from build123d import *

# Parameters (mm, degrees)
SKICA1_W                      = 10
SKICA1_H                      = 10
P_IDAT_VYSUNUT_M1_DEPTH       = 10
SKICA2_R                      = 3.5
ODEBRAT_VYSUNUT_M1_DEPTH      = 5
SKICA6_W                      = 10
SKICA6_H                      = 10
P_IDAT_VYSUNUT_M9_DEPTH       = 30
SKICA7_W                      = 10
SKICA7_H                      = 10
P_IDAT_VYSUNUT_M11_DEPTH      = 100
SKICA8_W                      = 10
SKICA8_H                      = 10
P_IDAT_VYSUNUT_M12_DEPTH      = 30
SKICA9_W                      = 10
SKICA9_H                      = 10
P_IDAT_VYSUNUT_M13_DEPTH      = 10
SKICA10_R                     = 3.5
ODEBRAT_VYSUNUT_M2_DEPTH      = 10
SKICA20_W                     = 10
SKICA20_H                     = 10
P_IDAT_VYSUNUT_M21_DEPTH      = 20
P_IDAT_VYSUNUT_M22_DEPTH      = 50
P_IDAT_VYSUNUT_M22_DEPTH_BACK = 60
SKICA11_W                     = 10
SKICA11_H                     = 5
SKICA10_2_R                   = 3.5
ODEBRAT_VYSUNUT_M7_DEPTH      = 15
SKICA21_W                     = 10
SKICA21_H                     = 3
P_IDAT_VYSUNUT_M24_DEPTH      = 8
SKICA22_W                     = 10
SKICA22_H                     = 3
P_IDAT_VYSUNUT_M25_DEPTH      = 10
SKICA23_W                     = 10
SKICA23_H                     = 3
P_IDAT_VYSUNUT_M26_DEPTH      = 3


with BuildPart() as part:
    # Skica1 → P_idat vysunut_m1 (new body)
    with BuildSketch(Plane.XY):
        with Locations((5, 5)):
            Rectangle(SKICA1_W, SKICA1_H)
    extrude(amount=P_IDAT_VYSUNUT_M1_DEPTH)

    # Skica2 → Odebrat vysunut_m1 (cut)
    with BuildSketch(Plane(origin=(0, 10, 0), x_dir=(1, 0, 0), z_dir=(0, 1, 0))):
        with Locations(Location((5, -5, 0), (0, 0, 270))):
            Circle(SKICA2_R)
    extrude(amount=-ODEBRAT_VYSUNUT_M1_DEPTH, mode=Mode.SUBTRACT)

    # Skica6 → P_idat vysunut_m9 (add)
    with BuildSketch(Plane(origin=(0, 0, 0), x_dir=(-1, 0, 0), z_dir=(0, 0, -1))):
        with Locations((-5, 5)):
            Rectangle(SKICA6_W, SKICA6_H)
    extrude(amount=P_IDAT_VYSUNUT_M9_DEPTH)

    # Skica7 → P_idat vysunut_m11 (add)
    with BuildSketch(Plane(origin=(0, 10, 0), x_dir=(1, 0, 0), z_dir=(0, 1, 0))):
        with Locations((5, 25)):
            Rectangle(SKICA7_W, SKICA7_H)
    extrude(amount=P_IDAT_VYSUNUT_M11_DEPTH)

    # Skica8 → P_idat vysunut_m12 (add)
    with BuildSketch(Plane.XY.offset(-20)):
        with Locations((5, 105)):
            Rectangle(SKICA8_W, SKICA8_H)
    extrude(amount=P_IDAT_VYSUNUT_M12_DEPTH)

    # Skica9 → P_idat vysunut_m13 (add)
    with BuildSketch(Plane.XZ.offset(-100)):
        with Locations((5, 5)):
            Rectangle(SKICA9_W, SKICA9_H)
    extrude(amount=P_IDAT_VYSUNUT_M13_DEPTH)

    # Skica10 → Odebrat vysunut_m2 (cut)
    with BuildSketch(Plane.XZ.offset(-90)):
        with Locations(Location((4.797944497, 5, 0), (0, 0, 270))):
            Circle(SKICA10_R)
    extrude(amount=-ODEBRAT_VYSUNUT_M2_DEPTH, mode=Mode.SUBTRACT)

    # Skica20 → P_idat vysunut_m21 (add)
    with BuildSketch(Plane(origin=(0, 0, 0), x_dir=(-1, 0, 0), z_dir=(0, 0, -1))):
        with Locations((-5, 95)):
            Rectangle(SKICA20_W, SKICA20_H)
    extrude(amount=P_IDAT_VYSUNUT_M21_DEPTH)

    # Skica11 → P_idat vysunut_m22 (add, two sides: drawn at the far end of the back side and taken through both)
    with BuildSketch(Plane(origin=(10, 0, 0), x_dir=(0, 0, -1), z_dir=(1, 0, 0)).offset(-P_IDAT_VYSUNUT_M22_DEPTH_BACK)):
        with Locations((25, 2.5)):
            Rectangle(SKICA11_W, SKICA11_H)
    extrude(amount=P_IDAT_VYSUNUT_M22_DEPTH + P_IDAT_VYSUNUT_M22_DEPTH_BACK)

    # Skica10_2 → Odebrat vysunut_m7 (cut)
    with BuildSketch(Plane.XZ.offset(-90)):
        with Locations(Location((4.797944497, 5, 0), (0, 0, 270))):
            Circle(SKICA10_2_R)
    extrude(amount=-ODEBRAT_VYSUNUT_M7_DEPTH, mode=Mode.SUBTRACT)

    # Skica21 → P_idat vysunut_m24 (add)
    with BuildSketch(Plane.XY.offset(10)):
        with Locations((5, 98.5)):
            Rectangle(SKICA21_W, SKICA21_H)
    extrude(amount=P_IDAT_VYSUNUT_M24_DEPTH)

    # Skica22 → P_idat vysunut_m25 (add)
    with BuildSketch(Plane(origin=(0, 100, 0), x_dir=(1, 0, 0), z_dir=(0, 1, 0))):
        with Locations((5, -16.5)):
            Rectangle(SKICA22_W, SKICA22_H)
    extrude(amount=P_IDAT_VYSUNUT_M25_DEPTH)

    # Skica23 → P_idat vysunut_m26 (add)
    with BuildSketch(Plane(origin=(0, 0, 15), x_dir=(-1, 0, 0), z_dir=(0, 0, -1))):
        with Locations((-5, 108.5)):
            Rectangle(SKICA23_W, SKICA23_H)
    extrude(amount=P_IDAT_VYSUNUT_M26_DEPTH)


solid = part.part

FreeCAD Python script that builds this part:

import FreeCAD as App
import Part
import Sketcher

doc = App.newDocument("Part")
body = doc.addObject("PartDesign::Body", "Body")

# Sketch on XY plane
sketch1 = body.newObject("Sketcher::SketchObject", "Sketch")
sketch1.AttachmentSupport = (doc.getObject("XY_Plane"), [""])
sketch1.MapMode = "FlatFace"
sketch1.addGeometry([
    Part.LineSegment(App.Vector(0, 10, 0), App.Vector(0, 0, 0)),
    Part.LineSegment(App.Vector(0, 0, 0), App.Vector(10, 0, 0)),
    Part.LineSegment(App.Vector(10, 0, 0), App.Vector(10, 10, 0)),
    Part.LineSegment(App.Vector(10, 10, 0), App.Vector(0, 10, 0)),
], False)
sketch1.addConstraint([
    Sketcher.Constraint("Coincident", 0, 2, 1, 1),
    Sketcher.Constraint("Coincident", 1, 2, 2, 1),
    Sketcher.Constraint("Coincident", 2, 2, 3, 1),
    Sketcher.Constraint("Coincident", 3, 2, 0, 1),
    Sketcher.Constraint("Vertical", 0),
    Sketcher.Constraint("Horizontal", 1),
    Sketcher.Constraint("Vertical", 2),
    Sketcher.Constraint("Horizontal", 3),
    Sketcher.Constraint("Coincident", 0, 2, -1, 1),
    Sketcher.Constraint("Equal", 3, 0),
    Sketcher.Constraint("DistanceX", 1, 1, 1, 2, 10.0),
])
pad1 = body.newObject("PartDesign::Pad", "Pad")
pad1.Profile = sketch1
pad1.Length = 10

# Sketch on XZ plane
sketch2 = body.newObject("Sketcher::SketchObject", "Sketch001")
sketch2.AttachmentSupport = (doc.getObject("XZ_Plane"), [""])
sketch2.MapMode = "FlatFace"
sketch2.AttachmentOffset = App.Placement(App.Vector(0, 0, -10), App.Rotation())
sketch2.addGeometry(Part.Circle(App.Vector(5, 5, 0), App.Vector(0, 0, 1), 3.5), False)
sketch2.addConstraint([
    Sketcher.Constraint("Diameter", 0, 7.0),
    Sketcher.Constraint("DistanceX", -1, 1, 0, 3, 5.0),
    Sketcher.Constraint("DistanceY", -1, 1, 0, 3, 5.0),
])
pocket1 = body.newObject("PartDesign::Pocket", "Pocket")
pocket1.Profile = sketch2
pocket1.Length = 5
pocket1.Reversed = True

# Sketch on XY plane
sketch3 = body.newObject("Sketcher::SketchObject", "Sketch002")
sketch3.AttachmentSupport = (doc.getObject("XY_Plane"), [""])
sketch3.MapMode = "FlatFace"
sketch3.addGeometry([
    Part.LineSegment(App.Vector(10, 10, 0), App.Vector(10, 0, 0)),
    Part.LineSegment(App.Vector(10, 0, 0), App.Vector(0, 0, 0)),
    Part.LineSegment(App.Vector(0, 0, 0), App.Vector(0, 10, 0)),
    Part.LineSegment(App.Vector(0, 10, 0), App.Vector(10, 10, 0)),
], False)
sketch3.addConstraint([
    Sketcher.Constraint("Coincident", 0, 2, 1, 1),
    Sketcher.Constraint("Coincident", 1, 2, 2, 1),
    Sketcher.Constraint("Coincident", 2, 2, 3, 1),
    Sketcher.Constraint("Coincident", 3, 2, 0, 1),
    Sketcher.Constraint("Vertical", 0),
    Sketcher.Constraint("Horizontal", 1),
    Sketcher.Constraint("Vertical", 2),
    Sketcher.Constraint("Horizontal", 3),
    Sketcher.Constraint("Coincident", 1, 2, -1, 1),
    Sketcher.Constraint("Equal", 3, 0),
    Sketcher.Constraint("DistanceX", 1, 2, 1, 1, 10.0),
])
pad2 = body.newObject("PartDesign::Pad", "Pad001")
pad2.Profile = sketch3
pad2.Length = 30
pad2.Reversed = True

# Sketch on XZ plane
sketch4 = body.newObject("Sketcher::SketchObject", "Sketch003")
sketch4.AttachmentSupport = (doc.getObject("XZ_Plane"), [""])
sketch4.MapMode = "FlatFace"
sketch4.AttachmentOffset = App.Placement(App.Vector(0, 0, -10), App.Rotation())
sketch4.addGeometry([
    Part.LineSegment(App.Vector(0, -30, 0), App.Vector(0, -20, 0)),
    Part.LineSegment(App.Vector(0, -20, 0), App.Vector(10, -20, 0)),
    Part.LineSegment(App.Vector(10, -20, 0), App.Vector(10, -30, 0)),
    Part.LineSegment(App.Vector(10, -30, 0), App.Vector(0, -30, 0)),
], False)
sketch4.addConstraint([
    Sketcher.Constraint("Coincident", 0, 2, 1, 1),
    Sketcher.Constraint("Coincident", 1, 2, 2, 1),
    Sketcher.Constraint("Coincident", 2, 2, 3, 1),
    Sketcher.Constraint("Coincident", 3, 2, 0, 1),
    Sketcher.Constraint("Vertical", 0),
    Sketcher.Constraint("Horizontal", 1),
    Sketcher.Constraint("Vertical", 2),
    Sketcher.Constraint("Horizontal", 3),
    Sketcher.Constraint("PointOnObject", 0, 2, -2),
    Sketcher.Constraint("Equal", 3, 0),
    Sketcher.Constraint("DistanceX", 1, 1, 1, 2, 10.0),
    Sketcher.Constraint("DistanceY", 0, 2, -1, 1, 20.0),
])
pad3 = body.newObject("PartDesign::Pad", "Pad002")
pad3.Profile = sketch4
pad3.Length = 100
pad3.Reversed = True

# Sketch on XY plane
sketch5 = body.newObject("Sketcher::SketchObject", "Sketch004")
sketch5.AttachmentSupport = (doc.getObject("XY_Plane"), [""])
sketch5.MapMode = "FlatFace"
sketch5.AttachmentOffset = App.Placement(App.Vector(0, 0, -20), App.Rotation())
sketch5.addGeometry([
    Part.LineSegment(App.Vector(0, 110, 0), App.Vector(0, 100, 0)),
    Part.LineSegment(App.Vector(0, 100, 0), App.Vector(10, 100, 0)),
    Part.LineSegment(App.Vector(10, 100, 0), App.Vector(10, 110, 0)),
    Part.LineSegment(App.Vector(10, 110, 0), App.Vector(0, 110, 0)),
], False)
sketch5.addConstraint([
    Sketcher.Constraint("Coincident", 0, 2, 1, 1),
    Sketcher.Constraint("Coincident", 1, 2, 2, 1),
    Sketcher.Constraint("Coincident", 2, 2, 3, 1),
    Sketcher.Constraint("Coincident", 3, 2, 0, 1),
    Sketcher.Constraint("Vertical", 0),
    Sketcher.Constraint("Horizontal", 1),
    Sketcher.Constraint("Vertical", 2),
    Sketcher.Constraint("Horizontal", 3),
    Sketcher.Constraint("PointOnObject", 0, 2, -2),
    Sketcher.Constraint("Equal", 3, 0),
    Sketcher.Constraint("DistanceX", 1, 1, 1, 2, 10.0),
    Sketcher.Constraint("DistanceY", -1, 1, 0, 2, 100.0),
])
pad4 = body.newObject("PartDesign::Pad", "Pad003")
pad4.Profile = sketch5
pad4.Length = 30

# Sketch on XZ plane
sketch6 = body.newObject("Sketcher::SketchObject", "Sketch005")
sketch6.AttachmentSupport = (doc.getObject("XZ_Plane"), [""])
sketch6.MapMode = "FlatFace"
sketch6.AttachmentOffset = App.Placement(App.Vector(0, 0, -100), App.Rotation())
sketch6.addGeometry([
    Part.LineSegment(App.Vector(0, 10, 0), App.Vector(0, 0, 0)),
    Part.LineSegment(App.Vector(0, 0, 0), App.Vector(10, 0, 0)),
    Part.LineSegment(App.Vector(10, 0, 0), App.Vector(10, 10, 0)),
    Part.LineSegment(App.Vector(10, 10, 0), App.Vector(0, 10, 0)),
], False)
sketch6.addConstraint([
    Sketcher.Constraint("Coincident", 0, 2, 1, 1),
    Sketcher.Constraint("Coincident", 1, 2, 2, 1),
    Sketcher.Constraint("Coincident", 2, 2, 3, 1),
    Sketcher.Constraint("Coincident", 3, 2, 0, 1),
    Sketcher.Constraint("Vertical", 0),
    Sketcher.Constraint("Horizontal", 1),
    Sketcher.Constraint("Vertical", 2),
    Sketcher.Constraint("Horizontal", 3),
    Sketcher.Constraint("Coincident", 0, 2, -1, 1),
    Sketcher.Constraint("Equal", 3, 0),
    Sketcher.Constraint("DistanceX", 1, 1, 1, 2, 10.0),
])
pad5 = body.newObject("PartDesign::Pad", "Pad004")
pad5.Profile = sketch6
pad5.Length = 10

# Sketch on XZ plane
sketch7 = body.newObject("Sketcher::SketchObject", "Sketch006")
sketch7.AttachmentSupport = (doc.getObject("XZ_Plane"), [""])
sketch7.MapMode = "FlatFace"
sketch7.AttachmentOffset = App.Placement(App.Vector(0, 0, -90), App.Rotation())
sketch7.addGeometry(Part.Circle(App.Vector(4.8, 5, 0), App.Vector(0, 0, 1), 3.5), False)
sketch7.addConstraint([
    Sketcher.Constraint("Diameter", 0, 7.0),
    Sketcher.Constraint("DistanceY", -1, 1, 0, 3, 5.0),
    Sketcher.Constraint("DistanceX", -1, 1, 0, 3, 4.797944),
])
pocket2 = body.newObject("PartDesign::Pocket", "Pocket001")
pocket2.Profile = sketch7
pocket2.Length = 10

# Sketch on XY plane
sketch8 = body.newObject("Sketcher::SketchObject", "Sketch007")
sketch8.AttachmentSupport = (doc.getObject("XY_Plane"), [""])
sketch8.MapMode = "FlatFace"
sketch8.addGeometry([
    Part.LineSegment(App.Vector(10, 100, 0), App.Vector(10, 90, 0)),
    Part.LineSegment(App.Vector(10, 90, 0), App.Vector(0, 90, 0)),
    Part.LineSegment(App.Vector(0, 90, 0), App.Vector(0, 100, 0)),
    Part.LineSegment(App.Vector(0, 100, 0), App.Vector(10, 100, 0)),
], False)
sketch8.addConstraint([
    Sketcher.Constraint("Coincident", 0, 2, 1, 1),
    Sketcher.Constraint("Coincident", 1, 2, 2, 1),
    Sketcher.Constraint("Coincident", 2, 2, 3, 1),
    Sketcher.Constraint("Coincident", 3, 2, 0, 1),
    Sketcher.Constraint("Vertical", 0),
    Sketcher.Constraint("Horizontal", 1),
    Sketcher.Constraint("Vertical", 2),
    Sketcher.Constraint("Horizontal", 3),
    Sketcher.Constraint("PointOnObject", 1, 2, -2),
    Sketcher.Constraint("Equal", 3, 0),
    Sketcher.Constraint("DistanceX", 1, 2, 1, 1, 10.0),
    Sketcher.Constraint("DistanceY", -1, 1, 0, 2, 90.0),
])
pad6 = body.newObject("PartDesign::Pad", "Pad005")
pad6.Profile = sketch8
pad6.Length = 20
pad6.Reversed = True

# Sketch on YZ plane
sketch9 = body.newObject("Sketcher::SketchObject", "Sketch008")
sketch9.AttachmentSupport = (doc.getObject("YZ_Plane"), [""])
sketch9.MapMode = "FlatFace"
sketch9.AttachmentOffset = App.Placement(App.Vector(0, 0, 10), App.Rotation())
sketch9.addGeometry([
    Part.LineSegment(App.Vector(5, -20, 0), App.Vector(0, -20, 0)),
    Part.LineSegment(App.Vector(0, -20, 0), App.Vector(0, -30, 0)),
    Part.LineSegment(App.Vector(0, -30, 0), App.Vector(5, -30, 0)),
    Part.LineSegment(App.Vector(5, -30, 0), App.Vector(5, -20, 0)),
], False)
sketch9.addConstraint([
    Sketcher.Constraint("Coincident", 0, 2, 1, 1),
    Sketcher.Constraint("Coincident", 1, 2, 2, 1),
    Sketcher.Constraint("Coincident", 2, 2, 3, 1),
    Sketcher.Constraint("Coincident", 3, 2, 0, 1),
    Sketcher.Constraint("Horizontal", 0),
    Sketcher.Constraint("Vertical", 1),
    Sketcher.Constraint("Horizontal", 2),
    Sketcher.Constraint("Vertical", 3),
    Sketcher.Constraint("PointOnObject", 0, 2, -2),
    Sketcher.Constraint("DistanceX", 0, 2, 0, 1, 5.0),
    Sketcher.Constraint("DistanceY", 1, 2, 1, 1, 10.0),
    Sketcher.Constraint("DistanceY", 0, 2, -1, 1, 20.0),
])
pad7 = body.newObject("PartDesign::Pad", "Pad006")
pad7.Profile = sketch9
pad7.Type = "TwoLengths"
pad7.Length = 50
pad7.Length2 = 60

# Sketch on XZ plane
sketch10 = body.newObject("Sketcher::SketchObject", "Sketch009")
sketch10.AttachmentSupport = (doc.getObject("XZ_Plane"), [""])
sketch10.MapMode = "FlatFace"
sketch10.AttachmentOffset = App.Placement(App.Vector(0, 0, -90), App.Rotation())
sketch10.addGeometry(Part.Circle(App.Vector(4.8, 5, 0), App.Vector(0, 0, 1), 3.5), False)
sketch10.addConstraint([
    Sketcher.Constraint("Diameter", 0, 7.0),
    Sketcher.Constraint("DistanceY", -1, 1, 0, 3, 5.0),
    Sketcher.Constraint("DistanceX", -1, 1, 0, 3, 4.797944),
])
pocket3 = body.newObject("PartDesign::Pocket", "Pocket002")
pocket3.Profile = sketch10
pocket3.Length = 15

# Sketch on XY plane
sketch11 = body.newObject("Sketcher::SketchObject", "Sketch010")
sketch11.AttachmentSupport = (doc.getObject("XY_Plane"), [""])
sketch11.MapMode = "FlatFace"
sketch11.AttachmentOffset = App.Placement(App.Vector(0, 0, 10), App.Rotation())
sketch11.addGeometry([
    Part.LineSegment(App.Vector(0, 100, 0), App.Vector(0, 97, 0)),
    Part.LineSegment(App.Vector(0, 97, 0), App.Vector(10, 97, 0)),
    Part.LineSegment(App.Vector(10, 97, 0), App.Vector(10, 100, 0)),
    Part.LineSegment(App.Vector(10, 100, 0), App.Vector(0, 100, 0)),
], False)
sketch11.addConstraint([
    Sketcher.Constraint("Coincident", 0, 2, 1, 1),
    Sketcher.Constraint("Coincident", 1, 2, 2, 1),
    Sketcher.Constraint("Coincident", 2, 2, 3, 1),
    Sketcher.Constraint("Coincident", 3, 2, 0, 1),
    Sketcher.Constraint("Vertical", 0),
    Sketcher.Constraint("Horizontal", 1),
    Sketcher.Constraint("Vertical", 2),
    Sketcher.Constraint("Horizontal", 3),
    Sketcher.Constraint("PointOnObject", 0, 2, -2),
    Sketcher.Constraint("DistanceX", 1, 1, 1, 2, 10.0),
    Sketcher.Constraint("DistanceY", 0, 2, 0, 1, 3.0),
    Sketcher.Constraint("DistanceY", -1, 1, 0, 2, 97.0),
])
pad8 = body.newObject("PartDesign::Pad", "Pad007")
pad8.Profile = sketch11
pad8.Length = 8

# Sketch on XZ plane
sketch12 = body.newObject("Sketcher::SketchObject", "Sketch011")
sketch12.AttachmentSupport = (doc.getObject("XZ_Plane"), [""])
sketch12.MapMode = "FlatFace"
sketch12.AttachmentOffset = App.Placement(App.Vector(0, 0, -100), App.Rotation())
sketch12.addGeometry([
    Part.LineSegment(App.Vector(0, 15, 0), App.Vector(0, 18, 0)),
    Part.LineSegment(App.Vector(0, 18, 0), App.Vector(10, 18, 0)),
    Part.LineSegment(App.Vector(10, 18, 0), App.Vector(10, 15, 0)),
    Part.LineSegment(App.Vector(10, 15, 0), App.Vector(0, 15, 0)),
], False)
sketch12.addConstraint([
    Sketcher.Constraint("Coincident", 0, 2, 1, 1),
    Sketcher.Constraint("Coincident", 1, 2, 2, 1),
    Sketcher.Constraint("Coincident", 2, 2, 3, 1),
    Sketcher.Constraint("Coincident", 3, 2, 0, 1),
    Sketcher.Constraint("Vertical", 0),
    Sketcher.Constraint("Horizontal", 1),
    Sketcher.Constraint("Vertical", 2),
    Sketcher.Constraint("Horizontal", 3),
    Sketcher.Constraint("PointOnObject", 0, 2, -2),
    Sketcher.Constraint("DistanceX", 1, 1, 1, 2, 10.0),
    Sketcher.Constraint("DistanceY", 0, 1, 0, 2, 3.0),
    Sketcher.Constraint("DistanceY", -1, 1, 0, 2, 18.0),
])
pad9 = body.newObject("PartDesign::Pad", "Pad008")
pad9.Profile = sketch12
pad9.Length = 10
pad9.Reversed = True

# Sketch on XY plane
sketch13 = body.newObject("Sketcher::SketchObject", "Sketch012")
sketch13.AttachmentSupport = (doc.getObject("XY_Plane"), [""])
sketch13.MapMode = "FlatFace"
sketch13.AttachmentOffset = App.Placement(App.Vector(0, 0, 15), App.Rotation())
sketch13.addGeometry([
    Part.LineSegment(App.Vector(10, 110, 0), App.Vector(10, 107, 0)),
    Part.LineSegment(App.Vector(10, 107, 0), App.Vector(0, 107, 0)),
    Part.LineSegment(App.Vector(0, 107, 0), App.Vector(0, 110, 0)),
    Part.LineSegment(App.Vector(0, 110, 0), App.Vector(10, 110, 0)),
], False)
sketch13.addConstraint([
    Sketcher.Constraint("Coincident", 0, 2, 1, 1),
    Sketcher.Constraint("Coincident", 1, 2, 2, 1),
    Sketcher.Constraint("Coincident", 2, 2, 3, 1),
    Sketcher.Constraint("Coincident", 3, 2, 0, 1),
    Sketcher.Constraint("Vertical", 0),
    Sketcher.Constraint("Horizontal", 1),
    Sketcher.Constraint("Vertical", 2),
    Sketcher.Constraint("Horizontal", 3),
    Sketcher.Constraint("PointOnObject", 1, 2, -2),
    Sketcher.Constraint("DistanceX", 1, 2, 1, 1, 10.0),
    Sketcher.Constraint("DistanceY", 0, 2, 0, 1, 3.0),
    Sketcher.Constraint("DistanceY", -1, 1, 0, 2, 107.0),
])
pad10 = body.newObject("PartDesign::Pad", "Pad009")
pad10.Profile = sketch13
pad10.Length = 3
pad10.Reversed = True

doc.recompute()
